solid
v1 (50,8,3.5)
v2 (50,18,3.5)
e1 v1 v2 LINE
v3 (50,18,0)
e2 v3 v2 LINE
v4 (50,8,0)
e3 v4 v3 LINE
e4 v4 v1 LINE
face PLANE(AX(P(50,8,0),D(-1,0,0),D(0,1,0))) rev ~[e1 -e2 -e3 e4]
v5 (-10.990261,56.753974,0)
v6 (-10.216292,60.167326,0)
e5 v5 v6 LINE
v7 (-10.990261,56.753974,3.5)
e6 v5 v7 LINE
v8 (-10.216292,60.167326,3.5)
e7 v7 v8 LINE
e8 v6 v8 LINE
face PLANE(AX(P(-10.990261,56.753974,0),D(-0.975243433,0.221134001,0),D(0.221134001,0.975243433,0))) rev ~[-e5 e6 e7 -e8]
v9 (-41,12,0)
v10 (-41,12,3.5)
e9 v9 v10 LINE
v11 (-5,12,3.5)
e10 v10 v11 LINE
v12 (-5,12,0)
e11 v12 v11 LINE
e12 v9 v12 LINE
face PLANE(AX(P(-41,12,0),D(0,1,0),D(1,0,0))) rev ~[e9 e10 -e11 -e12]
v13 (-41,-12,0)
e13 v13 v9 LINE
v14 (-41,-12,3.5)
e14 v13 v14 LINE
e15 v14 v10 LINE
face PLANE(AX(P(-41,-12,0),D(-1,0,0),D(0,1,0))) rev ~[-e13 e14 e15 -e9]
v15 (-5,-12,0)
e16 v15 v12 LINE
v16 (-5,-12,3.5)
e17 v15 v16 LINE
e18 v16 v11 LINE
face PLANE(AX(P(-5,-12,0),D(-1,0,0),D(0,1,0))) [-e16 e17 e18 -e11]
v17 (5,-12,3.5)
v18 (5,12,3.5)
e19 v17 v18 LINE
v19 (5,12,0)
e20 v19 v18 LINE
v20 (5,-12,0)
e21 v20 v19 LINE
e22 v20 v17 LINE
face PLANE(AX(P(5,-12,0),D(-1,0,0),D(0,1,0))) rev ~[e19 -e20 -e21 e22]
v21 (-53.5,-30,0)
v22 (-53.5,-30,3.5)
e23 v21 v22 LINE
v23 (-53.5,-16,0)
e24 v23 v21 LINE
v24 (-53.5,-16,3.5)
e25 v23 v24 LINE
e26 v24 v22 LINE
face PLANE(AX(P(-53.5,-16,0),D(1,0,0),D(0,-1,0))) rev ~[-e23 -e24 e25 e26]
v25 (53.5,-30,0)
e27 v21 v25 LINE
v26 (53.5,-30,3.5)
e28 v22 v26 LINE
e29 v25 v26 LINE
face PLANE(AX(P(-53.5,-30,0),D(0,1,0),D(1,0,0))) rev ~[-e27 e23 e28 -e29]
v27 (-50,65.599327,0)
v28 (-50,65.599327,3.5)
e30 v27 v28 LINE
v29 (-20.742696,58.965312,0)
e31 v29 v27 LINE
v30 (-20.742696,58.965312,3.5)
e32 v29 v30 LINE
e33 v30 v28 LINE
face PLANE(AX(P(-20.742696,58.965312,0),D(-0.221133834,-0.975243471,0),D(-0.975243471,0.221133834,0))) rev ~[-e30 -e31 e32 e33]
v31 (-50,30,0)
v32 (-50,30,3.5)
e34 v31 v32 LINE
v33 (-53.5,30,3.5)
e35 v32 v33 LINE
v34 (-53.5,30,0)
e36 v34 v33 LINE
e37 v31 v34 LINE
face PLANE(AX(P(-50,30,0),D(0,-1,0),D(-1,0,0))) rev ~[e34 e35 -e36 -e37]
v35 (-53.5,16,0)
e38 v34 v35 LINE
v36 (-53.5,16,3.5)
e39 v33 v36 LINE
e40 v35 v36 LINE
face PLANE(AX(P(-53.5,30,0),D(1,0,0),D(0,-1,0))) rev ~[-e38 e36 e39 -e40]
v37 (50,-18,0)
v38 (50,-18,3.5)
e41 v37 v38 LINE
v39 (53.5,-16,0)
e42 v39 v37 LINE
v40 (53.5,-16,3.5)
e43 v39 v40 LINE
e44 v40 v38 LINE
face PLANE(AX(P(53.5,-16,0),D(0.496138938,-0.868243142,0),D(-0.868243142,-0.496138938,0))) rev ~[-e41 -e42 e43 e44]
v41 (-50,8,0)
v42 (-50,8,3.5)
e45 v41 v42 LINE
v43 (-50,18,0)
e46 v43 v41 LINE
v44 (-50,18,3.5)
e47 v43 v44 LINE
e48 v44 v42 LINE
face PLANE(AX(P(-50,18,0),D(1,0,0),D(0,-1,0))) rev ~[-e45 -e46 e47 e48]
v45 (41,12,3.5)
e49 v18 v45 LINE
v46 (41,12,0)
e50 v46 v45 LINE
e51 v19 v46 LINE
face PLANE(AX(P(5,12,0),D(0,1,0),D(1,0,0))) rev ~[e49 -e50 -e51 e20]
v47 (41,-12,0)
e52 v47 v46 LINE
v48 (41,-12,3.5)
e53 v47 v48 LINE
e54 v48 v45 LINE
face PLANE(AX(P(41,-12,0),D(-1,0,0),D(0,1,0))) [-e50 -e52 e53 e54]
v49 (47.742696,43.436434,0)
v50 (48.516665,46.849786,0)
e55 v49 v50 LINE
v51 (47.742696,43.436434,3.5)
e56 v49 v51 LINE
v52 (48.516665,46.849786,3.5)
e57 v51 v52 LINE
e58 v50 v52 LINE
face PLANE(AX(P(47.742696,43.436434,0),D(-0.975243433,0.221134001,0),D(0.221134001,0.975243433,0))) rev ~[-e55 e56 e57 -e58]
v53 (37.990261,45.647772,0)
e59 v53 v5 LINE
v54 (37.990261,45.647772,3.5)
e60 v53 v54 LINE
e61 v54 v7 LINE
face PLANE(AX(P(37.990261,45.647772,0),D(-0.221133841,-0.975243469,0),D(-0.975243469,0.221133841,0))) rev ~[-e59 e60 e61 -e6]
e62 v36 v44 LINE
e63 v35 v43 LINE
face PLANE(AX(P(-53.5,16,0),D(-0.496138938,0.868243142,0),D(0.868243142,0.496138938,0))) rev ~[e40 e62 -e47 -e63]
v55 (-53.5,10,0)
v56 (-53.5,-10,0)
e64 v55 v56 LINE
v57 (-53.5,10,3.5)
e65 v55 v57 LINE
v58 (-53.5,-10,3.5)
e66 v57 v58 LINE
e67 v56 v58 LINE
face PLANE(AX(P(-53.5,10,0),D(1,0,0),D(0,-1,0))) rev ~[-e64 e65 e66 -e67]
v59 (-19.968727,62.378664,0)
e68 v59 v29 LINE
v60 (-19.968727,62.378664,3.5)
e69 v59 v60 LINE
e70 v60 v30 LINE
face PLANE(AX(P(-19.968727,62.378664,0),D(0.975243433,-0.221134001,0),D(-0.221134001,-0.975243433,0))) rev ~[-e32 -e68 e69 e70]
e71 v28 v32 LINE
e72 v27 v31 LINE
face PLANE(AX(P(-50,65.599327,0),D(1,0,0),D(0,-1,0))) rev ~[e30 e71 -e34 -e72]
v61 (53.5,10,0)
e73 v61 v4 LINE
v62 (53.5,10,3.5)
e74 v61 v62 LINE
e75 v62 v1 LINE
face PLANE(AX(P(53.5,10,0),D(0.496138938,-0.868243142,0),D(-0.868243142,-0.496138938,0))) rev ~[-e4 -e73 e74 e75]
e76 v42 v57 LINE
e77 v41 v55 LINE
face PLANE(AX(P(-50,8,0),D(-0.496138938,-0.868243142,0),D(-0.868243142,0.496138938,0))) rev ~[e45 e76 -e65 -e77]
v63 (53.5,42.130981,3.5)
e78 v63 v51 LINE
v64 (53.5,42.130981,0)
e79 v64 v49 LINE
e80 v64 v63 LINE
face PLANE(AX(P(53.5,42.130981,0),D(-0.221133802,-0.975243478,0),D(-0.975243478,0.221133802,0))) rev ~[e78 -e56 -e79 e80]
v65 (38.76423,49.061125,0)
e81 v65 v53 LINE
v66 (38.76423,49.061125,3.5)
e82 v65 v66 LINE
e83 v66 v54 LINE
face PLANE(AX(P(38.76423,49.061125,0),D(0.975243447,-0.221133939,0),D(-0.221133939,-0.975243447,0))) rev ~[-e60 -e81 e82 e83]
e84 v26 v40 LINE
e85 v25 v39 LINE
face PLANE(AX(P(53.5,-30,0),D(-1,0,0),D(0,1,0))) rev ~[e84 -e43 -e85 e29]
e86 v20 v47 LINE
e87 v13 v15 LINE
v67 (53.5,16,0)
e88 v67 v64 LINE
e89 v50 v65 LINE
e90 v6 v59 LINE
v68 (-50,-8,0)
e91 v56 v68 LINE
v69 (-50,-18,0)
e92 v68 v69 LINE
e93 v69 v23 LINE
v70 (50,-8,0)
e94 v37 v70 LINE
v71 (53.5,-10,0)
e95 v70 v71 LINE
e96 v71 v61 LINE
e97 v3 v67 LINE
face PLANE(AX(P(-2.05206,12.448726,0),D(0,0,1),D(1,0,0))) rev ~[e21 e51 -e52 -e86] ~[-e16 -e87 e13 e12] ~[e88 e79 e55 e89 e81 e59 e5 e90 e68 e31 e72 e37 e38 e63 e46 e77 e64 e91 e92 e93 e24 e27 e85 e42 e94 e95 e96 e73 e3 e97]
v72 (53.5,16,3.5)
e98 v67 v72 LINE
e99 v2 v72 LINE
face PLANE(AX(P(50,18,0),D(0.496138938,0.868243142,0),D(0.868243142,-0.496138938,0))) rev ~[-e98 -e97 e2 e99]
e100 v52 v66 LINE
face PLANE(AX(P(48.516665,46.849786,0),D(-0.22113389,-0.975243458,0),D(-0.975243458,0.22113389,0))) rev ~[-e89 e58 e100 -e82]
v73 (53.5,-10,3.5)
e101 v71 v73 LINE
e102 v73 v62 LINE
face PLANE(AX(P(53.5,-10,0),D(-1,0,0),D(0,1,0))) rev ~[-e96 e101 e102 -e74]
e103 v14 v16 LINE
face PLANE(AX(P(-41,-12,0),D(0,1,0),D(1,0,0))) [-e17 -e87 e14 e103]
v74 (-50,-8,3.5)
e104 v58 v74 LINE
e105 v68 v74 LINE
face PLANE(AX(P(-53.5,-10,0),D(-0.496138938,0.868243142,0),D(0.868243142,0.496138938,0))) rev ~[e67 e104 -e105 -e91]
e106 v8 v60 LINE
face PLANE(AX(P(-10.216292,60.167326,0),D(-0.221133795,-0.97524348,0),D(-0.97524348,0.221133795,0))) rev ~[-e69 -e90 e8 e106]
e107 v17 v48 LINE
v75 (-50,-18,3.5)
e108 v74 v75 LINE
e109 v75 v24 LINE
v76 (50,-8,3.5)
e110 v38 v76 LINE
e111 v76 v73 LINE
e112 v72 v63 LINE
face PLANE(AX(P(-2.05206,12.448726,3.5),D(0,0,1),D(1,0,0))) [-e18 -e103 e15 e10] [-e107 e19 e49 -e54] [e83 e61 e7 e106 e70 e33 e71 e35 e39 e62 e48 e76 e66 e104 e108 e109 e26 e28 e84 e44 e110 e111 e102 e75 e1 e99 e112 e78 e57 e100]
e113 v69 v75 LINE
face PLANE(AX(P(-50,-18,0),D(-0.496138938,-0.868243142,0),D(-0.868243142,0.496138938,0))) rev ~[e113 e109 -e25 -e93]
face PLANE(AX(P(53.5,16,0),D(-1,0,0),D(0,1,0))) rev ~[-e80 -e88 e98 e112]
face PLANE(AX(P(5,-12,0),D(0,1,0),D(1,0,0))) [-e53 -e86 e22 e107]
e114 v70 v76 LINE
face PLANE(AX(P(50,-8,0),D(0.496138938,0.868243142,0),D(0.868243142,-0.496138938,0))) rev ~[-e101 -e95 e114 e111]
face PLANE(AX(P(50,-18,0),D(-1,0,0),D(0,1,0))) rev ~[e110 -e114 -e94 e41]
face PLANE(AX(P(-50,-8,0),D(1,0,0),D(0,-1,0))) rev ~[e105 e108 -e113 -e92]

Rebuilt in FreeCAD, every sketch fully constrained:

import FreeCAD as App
import Part
import Sketcher
Q = App.Units.Quantity

doc = App.newDocument("Part")
body = doc.addObject("PartDesign::Body", "Body")

# Sketch on XY plane
sketch1 = doc.addObject("Sketcher::SketchObject", "Sketch")
body.addObject(sketch1)
sketch1.AttachmentSupport = (doc.XY_Plane, [""])
sketch1.MapMode = "FlatFace"
sketch1.addGeometry([
    Part.LineSegment(App.Vector(53.5, -30, 0), App.Vector(53.5, -16, 0)),  # 0
    Part.LineSegment(App.Vector(53.5, -16, 0), App.Vector(50, -18, 0)),  # 1
    Part.LineSegment(App.Vector(50, -18, 0), App.Vector(50, -8, 0)),  # 2
    Part.LineSegment(App.Vector(50, -8, 0), App.Vector(53.5, -10, 0)),  # 3
    Part.LineSegment(App.Vector(53.5, -10, 0), App.Vector(53.5, 10, 0)),  # 4
    Part.LineSegment(App.Vector(53.5, 10, 0), App.Vector(50, 8, 0)),  # 5
    Part.LineSegment(App.Vector(50, 8, 0), App.Vector(50, 18, 0)),  # 6
    Part.LineSegment(App.Vector(50, 18, 0), App.Vector(53.5, 16, 0)),  # 7
    Part.LineSegment(App.Vector(53.5, 16, 0), App.Vector(53.5, 42.1, 0)),  # 8
    Part.LineSegment(App.Vector(53.5, 42.1, 0), App.Vector(47.7, 43.4, 0)),  # 9
    Part.LineSegment(App.Vector(47.7, 43.4, 0), App.Vector(48.5, 46.8, 0)),  # 10
    Part.LineSegment(App.Vector(48.5, 46.8, 0), App.Vector(38.8, 49.1, 0)),  # 11
    Part.LineSegment(App.Vector(38.8, 49.1, 0), App.Vector(38, 45.6, 0)),  # 12
    Part.LineSegment(App.Vector(38, 45.6, 0), App.Vector(-11, 56.8, 0)),  # 13
    Part.LineSegment(App.Vector(-11, 56.8, 0), App.Vector(-10.2, 60.2, 0)),  # 14
    Part.LineSegment(App.Vector(-10.2, 60.2, 0), App.Vector(-20, 62.4, 0)),  # 15
    Part.LineSegment(App.Vector(-20, 62.4, 0), App.Vector(-20.7, 59, 0)),  # 16
    Part.LineSegment(App.Vector(-20.7, 59, 0), App.Vector(-50, 65.6, 0)),  # 17
    Part.LineSegment(App.Vector(-50, 65.6, 0), App.Vector(-50, 30, 0)),  # 18
    Part.LineSegment(App.Vector(-50, 30, 0), App.Vector(-53.5, 30, 0)),  # 19
    Part.LineSegment(App.Vector(-53.5, 30, 0), App.Vector(-53.5, 16, 0)),  # 20
    Part.LineSegment(App.Vector(-53.5, 16, 0), App.Vector(-50, 18, 0)),  # 21
    Part.LineSegment(App.Vector(-50, 18, 0), App.Vector(-50, 8, 0)),  # 22
    Part.LineSegment(App.Vector(-50, 8, 0), App.Vector(-53.5, 10, 0)),  # 23
    Part.LineSegment(App.Vector(-53.5, 10, 0), App.Vector(-53.5, -10, 0)),  # 24
    Part.LineSegment(App.Vector(-53.5, -10, 0), App.Vector(-50, -8, 0)),  # 25
    Part.LineSegment(App.Vector(-50, -8, 0), App.Vector(-50, -18, 0)),  # 26
    Part.LineSegment(App.Vector(-50, -18, 0), App.Vector(-53.5, -16, 0)),  # 27
    Part.LineSegment(App.Vector(-53.5, -16, 0), App.Vector(-53.5, -30, 0)),  # 28
    Part.LineSegment(App.Vector(-53.5, -30, 0), App.Vector(53.5, -30, 0)),  # 29
    Part.LineSegment(App.Vector(-5, -12, 0), App.Vector(-41, -12, 0)),  # 30
    Part.LineSegment(App.Vector(-41, -12, 0), App.Vector(-41, 12, 0)),  # 31
    Part.LineSegment(App.Vector(-41, 12, 0), App.Vector(-5, 12, 0)),  # 32
    Part.LineSegment(App.Vector(-5, 12, 0), App.Vector(-5, -12, 0)),  # 33
    Part.LineSegment(App.Vector(41, -12, 0), App.Vector(5, -12, 0)),  # 34
    Part.LineSegment(App.Vector(5, -12, 0), App.Vector(5, 12, 0)),  # 35
    Part.LineSegment(App.Vector(5, 12, 0), App.Vector(41, 12, 0)),  # 36
    Part.LineSegment(App.Vector(41, 12, 0), App.Vector(41, -12, 0)),  # 37
], False)
sketch1.addConstraint([
    Sketcher.Constraint("Coincident", 0, 2, 1, 1),
    Sketcher.Constraint("Coincident", 1, 2, 2, 1),
    Sketcher.Constraint("Coincident", 2, 2, 3, 1),
    Sketcher.Constraint("Coincident", 3, 2, 4, 1),
    Sketcher.Constraint("Coincident", 4, 2, 5, 1),
    Sketcher.Constraint("Coincident", 5, 2, 6, 1),
    Sketcher.Constraint("Coincident", 6, 2, 7, 1),
    Sketcher.Constraint("Coincident", 7, 2, 8, 1),
    Sketcher.Constraint("Coincident", 8, 2, 9, 1),
    Sketcher.Constraint("Coincident", 9, 2, 10, 1),
    Sketcher.Constraint("Coincident", 10, 2, 11, 1),
    Sketcher.Constraint("Coincident", 11, 2, 12, 1),
    Sketcher.Constraint("Coincident", 12, 2, 13, 1),
    Sketcher.Constraint("Coincident", 13, 2, 14, 1),
    Sketcher.Constraint("Coincident", 14, 2, 15, 1),
    Sketcher.Constraint("Coincident", 15, 2, 16, 1),
    Sketcher.Constraint("Coincident", 16, 2, 17, 1),
    Sketcher.Constraint("Coincident", 17, 2, 18, 1),
    Sketcher.Constraint("Coincident", 18, 2, 19, 1),
    Sketcher.Constraint("Coincident", 19, 2, 20, 1),
    Sketcher.Constraint("Coincident", 20, 2, 21, 1),
    Sketcher.Constraint("Coincident", 21, 2, 22, 1),
    Sketcher.Constraint("Coincident", 22, 2, 23, 1),
    Sketcher.Constraint("Coincident", 23, 2, 24, 1),
    Sketcher.Constraint("Coincident", 24, 2, 25, 1),
    Sketcher.Constraint("Coincident", 25, 2, 26, 1),
    Sketcher.Constraint("Coincident", 26, 2, 27, 1),
    Sketcher.Constraint("Coincident", 27, 2, 28, 1),
    Sketcher.Constraint("Coincident", 28, 2, 29, 1),
    Sketcher.Constraint("Coincident", 29, 2, 0, 1),
    Sketcher.Constraint("Coincident", 30, 2, 31, 1),
    Sketcher.Constraint("Coincident", 31, 2, 32, 1),
    Sketcher.Constraint("Coincident", 32, 2, 33, 1),
    Sketcher.Constraint("Coincident", 33, 2, 30, 1),
    Sketcher.Constraint("Coincident", 34, 2, 35, 1),
    Sketcher.Constraint("Coincident", 35, 2, 36, 1),
    Sketcher.Constraint("Coincident", 36, 2, 37, 1),
    Sketcher.Constraint("Coincident", 37, 2, 34, 1),
    Sketcher.Constraint("Vertical", 0),
    Sketcher.Constraint("Vertical", 2),
    Sketcher.Constraint("Vertical", 4),
    Sketcher.Constraint("Vertical", 6),
    Sketcher.Constraint("Vertical", 8),
    Sketcher.Constraint("Vertical", 18),
    Sketcher.Constraint("Horizontal", 19),
    Sketcher.Constraint("Vertical", 20),
    Sketcher.Constraint("Vertical", 22),
    Sketcher.Constraint("Vertical", 24),
    Sketcher.Constraint("Vertical", 26),
    Sketcher.Constraint("Vertical", 28),
    Sketcher.Constraint("Horizontal", 29),
    Sketcher.Constraint("Horizontal", 30),
    Sketcher.Constraint("Vertical", 31),
    Sketcher.Constraint("Horizontal", 32),
    Sketcher.Constraint("Vertical", 33),
    Sketcher.Constraint("Horizontal", 34),
    Sketcher.Constraint("Vertical", 35),
    Sketcher.Constraint("Horizontal", 36),
    Sketcher.Constraint("Vertical", 37),
    Sketcher.Constraint("Symmetric", 0, 2, 20, 2, -1, 1),
    Sketcher.Constraint("Symmetric", 1, 2, 21, 2, -1, 1),
    Sketcher.Constraint("Symmetric", 3, 2, 23, 2, -1, 1),
    Sketcher.Constraint("Symmetric", 5, 2, 25, 2, -1, 1),
    Sketcher.Constraint("Symmetric", 7, 2, 27, 2, -1, 1),
    Sketcher.Constraint("Symmetric", 32, 2, 34, 2, -1, 1),
    Sketcher.Constraint("Symmetric", 30, 2, 36, 2, -1, 1),
    Sketcher.Constraint("Symmetric", 7, 2, 20, 2, -2),
    Sketcher.Constraint("Symmetric", 6, 2, 21, 2, -2),
    Sketcher.Constraint("Parallel", 1, 5),
    Sketcher.Constraint("Parallel", 3, 7),
    Sketcher.Constraint("Perpendicular", 9, 10),
    Sketcher.Constraint("Perpendicular", 10, 11),
    Sketcher.Constraint("Perpendicular", 11, 12),
    Sketcher.Constraint("Perpendicular", 12, 13),
    Sketcher.Constraint("Perpendicular", 13, 14),
    Sketcher.Constraint("Perpendicular", 14, 15),
    Sketcher.Constraint("Perpendicular", 15, 16),
    Sketcher.Constraint("Perpendicular", 16, 17),
    Sketcher.Constraint("Parallel", 7, 23),
    Sketcher.Constraint("Parallel", 21, 25),
    Sketcher.Constraint("Parallel", 23, 27),
    Sketcher.Constraint("Horizontal", 5, 2, 22, 2),
    Sketcher.Constraint("Horizontal", 33, 2, 34, 2),
    Sketcher.Constraint("Vertical", 0, 2, 3, 2),
    Sketcher.Constraint("Vertical", 18, 2, 21, 2),
    Sketcher.Constraint("Equal", 0, 20),
    Sketcher.Constraint("Equal", 10, 12),
    Sketcher.Constraint("Equal", 12, 14),
    Sketcher.Constraint("Equal", 11, 15),
    Sketcher.Constraint("Equal", 14, 16),
    Sketcher.Constraint("DistanceX", 29, 1, 29, 2, Q("107 mm")),
    Sketcher.Constraint("DistanceX", 30, 2, 30, 1, Q("36 mm")),
    Sketcher.Constraint("DistanceY", 0, 1, 0, 2, Q("14 mm")),
    Sketcher.Constraint("DistanceY", 2, 1, 2, 2, Q("10 mm")),
    Sketcher.Constraint("DistanceY", 4, 1, 4, 2, Q("20 mm")),
    Sketcher.Constraint("DistanceY", 31, 1, 31, 2, Q("24 mm")),
    Sketcher.Constraint("Distance", 11, Q("10 mm")),
    Sketcher.Constraint("Distance", 17, Q("30 mm")),
    Sketcher.Constraint("DistanceX", 19, 2, 19, 1, Q("3.5 mm")),
    Sketcher.Constraint("DistanceY", 0, 2, -1, 1, Q("16 mm")),
    Sketcher.Constraint("DistanceX", 30, 2, -1, 1, Q("41 mm")),
    Sketcher.Constraint("Distance", 10, Q("3.5 mm")),
    Sketcher.Constraint("DistanceY", 14, 2, 17, 2, Q("5.432001 mm")),
    Sketcher.Constraint("DistanceY", 8, 1, 8, 2, Q("26.130981 mm")),
    Sketcher.Constraint("DistanceY", 12, 2, 13, 2, Q("11.106202 mm")),
])
pad1 = doc.addObject("PartDesign::Pad", "Pad")
body.addObject(pad1)
pad1.Profile = sketch1
pad1.Length = 3.5

doc.recompute()
